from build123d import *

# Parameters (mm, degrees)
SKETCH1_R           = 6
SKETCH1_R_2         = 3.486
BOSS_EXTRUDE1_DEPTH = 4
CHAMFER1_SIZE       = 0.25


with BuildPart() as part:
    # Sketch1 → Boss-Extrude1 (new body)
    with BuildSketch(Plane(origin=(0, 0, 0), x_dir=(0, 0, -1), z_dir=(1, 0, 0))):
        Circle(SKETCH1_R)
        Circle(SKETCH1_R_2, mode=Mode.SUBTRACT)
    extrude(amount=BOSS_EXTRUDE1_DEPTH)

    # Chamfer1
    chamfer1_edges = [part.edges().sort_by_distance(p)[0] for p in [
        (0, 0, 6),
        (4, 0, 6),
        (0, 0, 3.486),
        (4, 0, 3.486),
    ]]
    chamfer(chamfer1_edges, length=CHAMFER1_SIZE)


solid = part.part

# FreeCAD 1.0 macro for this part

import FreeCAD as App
import Part
import Sketcher
from FreeCAD import Vector
Q = App.Units.Quantity


def edges_at(feature, points):
    """Names of the edges that pass closest to the given points."""
    edges = feature.Shape.Edges
    near = lambda p: min(range(len(edges)), key=lambda i: edges[i].distToShape(Part.Vertex(*p))[0])
    return sorted({f"Edge{near(p) + 1}" for p in points})

doc = App.newDocument("Part")
body = doc.addObject("PartDesign::Body", "Body")

# Sketch on YZ plane
sketch1 = body.newObject("Sketcher::SketchObject", "Sketch")
sketch1.AttachmentSupport = (doc.getObject("YZ_Plane"), [""])
sketch1.MapMode = "FlatFace"
sketch1.addGeometry([
    Part.Circle(Vector(0, 0, 0), Vector(0, 0, 1), 6),
    Part.Circle(Vector(0, 0, 0), Vector(0, 0, 1), 3.5),
], False)
sketch1.addConstraint([
    Sketcher.Constraint("Coincident", 0, 3, -1, 1),
    Sketcher.Constraint("Coincident", 1, 3, -1, 1),
    Sketcher.Constraint("Diameter", 0, Q("12 mm")),
    Sketcher.Constraint("Diameter", 1, Q("6.972 mm")),
])
pad1 = body.newObject("PartDesign::Pad", "Pad")
pad1.Profile = sketch1
pad1.Length = 4
doc.recompute()

chamfer = body.newObject("PartDesign::Chamfer", "Chamfer")
chamfer.Base = (pad1, edges_at(pad1, [
    (0, 0, 6),
    (4, 0, 6),
    (0, 0, 3.486),
    (4, 0, 3.486),
]))
chamfer.Size = 0.25

doc.recompute()
